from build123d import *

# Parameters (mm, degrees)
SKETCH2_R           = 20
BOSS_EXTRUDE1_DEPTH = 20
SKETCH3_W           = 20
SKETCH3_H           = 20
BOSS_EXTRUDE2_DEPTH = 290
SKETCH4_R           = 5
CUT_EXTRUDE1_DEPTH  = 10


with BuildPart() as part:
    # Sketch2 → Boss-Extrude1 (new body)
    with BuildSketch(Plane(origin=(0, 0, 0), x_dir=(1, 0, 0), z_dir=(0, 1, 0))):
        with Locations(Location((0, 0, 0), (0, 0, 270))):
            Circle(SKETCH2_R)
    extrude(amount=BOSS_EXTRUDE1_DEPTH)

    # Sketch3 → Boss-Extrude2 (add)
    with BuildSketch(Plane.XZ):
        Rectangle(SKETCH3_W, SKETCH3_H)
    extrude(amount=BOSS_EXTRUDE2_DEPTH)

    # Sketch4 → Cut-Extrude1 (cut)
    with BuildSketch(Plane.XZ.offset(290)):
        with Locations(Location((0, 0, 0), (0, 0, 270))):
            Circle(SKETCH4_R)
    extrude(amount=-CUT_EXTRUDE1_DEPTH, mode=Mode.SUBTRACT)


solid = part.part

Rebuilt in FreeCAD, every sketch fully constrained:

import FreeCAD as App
import Part
import Sketcher


def add_polygon(sketch, points):
    """Adds a closed chain of lines whose ends are joined by coincident constraints."""
    first, n = sketch.GeometryCount, len(points)
    for a, b in zip(points, points[1:] + points[:1]):
        sketch.addGeometry(Part.LineSegment(App.Vector(*a, 0), App.Vector(*b, 0)), False)
    for i in range(n):
        sketch.addConstraint(Sketcher.Constraint("Coincident", first + i, 2, first + (i + 1) % n, 1))

doc = App.newDocument("Part")
body = doc.addObject("PartDesign::Body", "Body")

# Sketch on XZ plane
sketch1 = doc.addObject("Sketcher::SketchObject", "Sketch")
body.addObject(sketch1)
sketch1.AttachmentSupport = (doc.XZ_Plane, [""])
sketch1.MapMode = "FlatFace"
sketch1.addGeometry(Part.Circle(App.Vector(0, 0, 0), App.Vector(0, 0, 1), 20), False)
sketch1.addConstraint(Sketcher.Constraint("Coincident", 0, 3, -1, 1))
sketch1.addConstraint(Sketcher.Constraint("Diameter", 0, 40.0))
pad1 = doc.addObject("PartDesign::Pad", "Pad")
body.addObject(pad1)
pad1.Profile = sketch1
pad1.Length = 20
pad1.Reversed = True

# Sketch on XZ plane
sketch2 = doc.addObject("Sketcher::SketchObject", "Sketch001")
body.addObject(sketch2)
sketch2.AttachmentSupport = (doc.XZ_Plane, [""])
sketch2.MapMode = "FlatFace"
add_polygon(sketch2, [(-10, 10), (-10, -10), (10, -10), (10, 10)])  # lines 0-3
sketch2.addConstraint(Sketcher.Constraint("Vertical", 0))
sketch2.addConstraint(Sketcher.Constraint("Horizontal", 1))
sketch2.addConstraint(Sketcher.Constraint("Vertical", 2))
sketch2.addConstraint(Sketcher.Constraint("Horizontal", 3))
sketch2.addConstraint(Sketcher.Constraint("Symmetric", 0, 2, 2, 2, -1, 1))
sketch2.addConstraint(Sketcher.Constraint("Equal", 3, 0))
sketch2.addConstraint(Sketcher.Constraint("DistanceX", 1, 1, 1, 2, 20.0))
pad2 = doc.addObject("PartDesign::Pad", "Pad001")
body.addObject(pad2)
pad2.Profile = sketch2
pad2.Length = 290

# Sketch on XZ plane
sketch3 = doc.addObject("Sketcher::SketchObject", "Sketch002")
body.addObject(sketch3)
sketch3.AttachmentSupport = (doc.XZ_Plane, [""])
sketch3.MapMode = "FlatFace"
sketch3.AttachmentOffset = App.Placement(App.Vector(0, 0, 290), App.Rotation())
sketch3.addGeometry(Part.Circle(App.Vector(0, 0, 0), App.Vector(0, 0, 1), 5), False)
sketch3.addConstraint(Sketcher.Constraint("Coincident", 0, 3, -1, 1))
sketch3.addConstraint(Sketcher.Constraint("Diameter", 0, 10.0))
pocket1 = doc.addObject("PartDesign::Pocket", "Pocket")
body.addObject(pocket1)
pocket1.Profile = sketch3
pocket1.Length = 10

doc.recompute()
